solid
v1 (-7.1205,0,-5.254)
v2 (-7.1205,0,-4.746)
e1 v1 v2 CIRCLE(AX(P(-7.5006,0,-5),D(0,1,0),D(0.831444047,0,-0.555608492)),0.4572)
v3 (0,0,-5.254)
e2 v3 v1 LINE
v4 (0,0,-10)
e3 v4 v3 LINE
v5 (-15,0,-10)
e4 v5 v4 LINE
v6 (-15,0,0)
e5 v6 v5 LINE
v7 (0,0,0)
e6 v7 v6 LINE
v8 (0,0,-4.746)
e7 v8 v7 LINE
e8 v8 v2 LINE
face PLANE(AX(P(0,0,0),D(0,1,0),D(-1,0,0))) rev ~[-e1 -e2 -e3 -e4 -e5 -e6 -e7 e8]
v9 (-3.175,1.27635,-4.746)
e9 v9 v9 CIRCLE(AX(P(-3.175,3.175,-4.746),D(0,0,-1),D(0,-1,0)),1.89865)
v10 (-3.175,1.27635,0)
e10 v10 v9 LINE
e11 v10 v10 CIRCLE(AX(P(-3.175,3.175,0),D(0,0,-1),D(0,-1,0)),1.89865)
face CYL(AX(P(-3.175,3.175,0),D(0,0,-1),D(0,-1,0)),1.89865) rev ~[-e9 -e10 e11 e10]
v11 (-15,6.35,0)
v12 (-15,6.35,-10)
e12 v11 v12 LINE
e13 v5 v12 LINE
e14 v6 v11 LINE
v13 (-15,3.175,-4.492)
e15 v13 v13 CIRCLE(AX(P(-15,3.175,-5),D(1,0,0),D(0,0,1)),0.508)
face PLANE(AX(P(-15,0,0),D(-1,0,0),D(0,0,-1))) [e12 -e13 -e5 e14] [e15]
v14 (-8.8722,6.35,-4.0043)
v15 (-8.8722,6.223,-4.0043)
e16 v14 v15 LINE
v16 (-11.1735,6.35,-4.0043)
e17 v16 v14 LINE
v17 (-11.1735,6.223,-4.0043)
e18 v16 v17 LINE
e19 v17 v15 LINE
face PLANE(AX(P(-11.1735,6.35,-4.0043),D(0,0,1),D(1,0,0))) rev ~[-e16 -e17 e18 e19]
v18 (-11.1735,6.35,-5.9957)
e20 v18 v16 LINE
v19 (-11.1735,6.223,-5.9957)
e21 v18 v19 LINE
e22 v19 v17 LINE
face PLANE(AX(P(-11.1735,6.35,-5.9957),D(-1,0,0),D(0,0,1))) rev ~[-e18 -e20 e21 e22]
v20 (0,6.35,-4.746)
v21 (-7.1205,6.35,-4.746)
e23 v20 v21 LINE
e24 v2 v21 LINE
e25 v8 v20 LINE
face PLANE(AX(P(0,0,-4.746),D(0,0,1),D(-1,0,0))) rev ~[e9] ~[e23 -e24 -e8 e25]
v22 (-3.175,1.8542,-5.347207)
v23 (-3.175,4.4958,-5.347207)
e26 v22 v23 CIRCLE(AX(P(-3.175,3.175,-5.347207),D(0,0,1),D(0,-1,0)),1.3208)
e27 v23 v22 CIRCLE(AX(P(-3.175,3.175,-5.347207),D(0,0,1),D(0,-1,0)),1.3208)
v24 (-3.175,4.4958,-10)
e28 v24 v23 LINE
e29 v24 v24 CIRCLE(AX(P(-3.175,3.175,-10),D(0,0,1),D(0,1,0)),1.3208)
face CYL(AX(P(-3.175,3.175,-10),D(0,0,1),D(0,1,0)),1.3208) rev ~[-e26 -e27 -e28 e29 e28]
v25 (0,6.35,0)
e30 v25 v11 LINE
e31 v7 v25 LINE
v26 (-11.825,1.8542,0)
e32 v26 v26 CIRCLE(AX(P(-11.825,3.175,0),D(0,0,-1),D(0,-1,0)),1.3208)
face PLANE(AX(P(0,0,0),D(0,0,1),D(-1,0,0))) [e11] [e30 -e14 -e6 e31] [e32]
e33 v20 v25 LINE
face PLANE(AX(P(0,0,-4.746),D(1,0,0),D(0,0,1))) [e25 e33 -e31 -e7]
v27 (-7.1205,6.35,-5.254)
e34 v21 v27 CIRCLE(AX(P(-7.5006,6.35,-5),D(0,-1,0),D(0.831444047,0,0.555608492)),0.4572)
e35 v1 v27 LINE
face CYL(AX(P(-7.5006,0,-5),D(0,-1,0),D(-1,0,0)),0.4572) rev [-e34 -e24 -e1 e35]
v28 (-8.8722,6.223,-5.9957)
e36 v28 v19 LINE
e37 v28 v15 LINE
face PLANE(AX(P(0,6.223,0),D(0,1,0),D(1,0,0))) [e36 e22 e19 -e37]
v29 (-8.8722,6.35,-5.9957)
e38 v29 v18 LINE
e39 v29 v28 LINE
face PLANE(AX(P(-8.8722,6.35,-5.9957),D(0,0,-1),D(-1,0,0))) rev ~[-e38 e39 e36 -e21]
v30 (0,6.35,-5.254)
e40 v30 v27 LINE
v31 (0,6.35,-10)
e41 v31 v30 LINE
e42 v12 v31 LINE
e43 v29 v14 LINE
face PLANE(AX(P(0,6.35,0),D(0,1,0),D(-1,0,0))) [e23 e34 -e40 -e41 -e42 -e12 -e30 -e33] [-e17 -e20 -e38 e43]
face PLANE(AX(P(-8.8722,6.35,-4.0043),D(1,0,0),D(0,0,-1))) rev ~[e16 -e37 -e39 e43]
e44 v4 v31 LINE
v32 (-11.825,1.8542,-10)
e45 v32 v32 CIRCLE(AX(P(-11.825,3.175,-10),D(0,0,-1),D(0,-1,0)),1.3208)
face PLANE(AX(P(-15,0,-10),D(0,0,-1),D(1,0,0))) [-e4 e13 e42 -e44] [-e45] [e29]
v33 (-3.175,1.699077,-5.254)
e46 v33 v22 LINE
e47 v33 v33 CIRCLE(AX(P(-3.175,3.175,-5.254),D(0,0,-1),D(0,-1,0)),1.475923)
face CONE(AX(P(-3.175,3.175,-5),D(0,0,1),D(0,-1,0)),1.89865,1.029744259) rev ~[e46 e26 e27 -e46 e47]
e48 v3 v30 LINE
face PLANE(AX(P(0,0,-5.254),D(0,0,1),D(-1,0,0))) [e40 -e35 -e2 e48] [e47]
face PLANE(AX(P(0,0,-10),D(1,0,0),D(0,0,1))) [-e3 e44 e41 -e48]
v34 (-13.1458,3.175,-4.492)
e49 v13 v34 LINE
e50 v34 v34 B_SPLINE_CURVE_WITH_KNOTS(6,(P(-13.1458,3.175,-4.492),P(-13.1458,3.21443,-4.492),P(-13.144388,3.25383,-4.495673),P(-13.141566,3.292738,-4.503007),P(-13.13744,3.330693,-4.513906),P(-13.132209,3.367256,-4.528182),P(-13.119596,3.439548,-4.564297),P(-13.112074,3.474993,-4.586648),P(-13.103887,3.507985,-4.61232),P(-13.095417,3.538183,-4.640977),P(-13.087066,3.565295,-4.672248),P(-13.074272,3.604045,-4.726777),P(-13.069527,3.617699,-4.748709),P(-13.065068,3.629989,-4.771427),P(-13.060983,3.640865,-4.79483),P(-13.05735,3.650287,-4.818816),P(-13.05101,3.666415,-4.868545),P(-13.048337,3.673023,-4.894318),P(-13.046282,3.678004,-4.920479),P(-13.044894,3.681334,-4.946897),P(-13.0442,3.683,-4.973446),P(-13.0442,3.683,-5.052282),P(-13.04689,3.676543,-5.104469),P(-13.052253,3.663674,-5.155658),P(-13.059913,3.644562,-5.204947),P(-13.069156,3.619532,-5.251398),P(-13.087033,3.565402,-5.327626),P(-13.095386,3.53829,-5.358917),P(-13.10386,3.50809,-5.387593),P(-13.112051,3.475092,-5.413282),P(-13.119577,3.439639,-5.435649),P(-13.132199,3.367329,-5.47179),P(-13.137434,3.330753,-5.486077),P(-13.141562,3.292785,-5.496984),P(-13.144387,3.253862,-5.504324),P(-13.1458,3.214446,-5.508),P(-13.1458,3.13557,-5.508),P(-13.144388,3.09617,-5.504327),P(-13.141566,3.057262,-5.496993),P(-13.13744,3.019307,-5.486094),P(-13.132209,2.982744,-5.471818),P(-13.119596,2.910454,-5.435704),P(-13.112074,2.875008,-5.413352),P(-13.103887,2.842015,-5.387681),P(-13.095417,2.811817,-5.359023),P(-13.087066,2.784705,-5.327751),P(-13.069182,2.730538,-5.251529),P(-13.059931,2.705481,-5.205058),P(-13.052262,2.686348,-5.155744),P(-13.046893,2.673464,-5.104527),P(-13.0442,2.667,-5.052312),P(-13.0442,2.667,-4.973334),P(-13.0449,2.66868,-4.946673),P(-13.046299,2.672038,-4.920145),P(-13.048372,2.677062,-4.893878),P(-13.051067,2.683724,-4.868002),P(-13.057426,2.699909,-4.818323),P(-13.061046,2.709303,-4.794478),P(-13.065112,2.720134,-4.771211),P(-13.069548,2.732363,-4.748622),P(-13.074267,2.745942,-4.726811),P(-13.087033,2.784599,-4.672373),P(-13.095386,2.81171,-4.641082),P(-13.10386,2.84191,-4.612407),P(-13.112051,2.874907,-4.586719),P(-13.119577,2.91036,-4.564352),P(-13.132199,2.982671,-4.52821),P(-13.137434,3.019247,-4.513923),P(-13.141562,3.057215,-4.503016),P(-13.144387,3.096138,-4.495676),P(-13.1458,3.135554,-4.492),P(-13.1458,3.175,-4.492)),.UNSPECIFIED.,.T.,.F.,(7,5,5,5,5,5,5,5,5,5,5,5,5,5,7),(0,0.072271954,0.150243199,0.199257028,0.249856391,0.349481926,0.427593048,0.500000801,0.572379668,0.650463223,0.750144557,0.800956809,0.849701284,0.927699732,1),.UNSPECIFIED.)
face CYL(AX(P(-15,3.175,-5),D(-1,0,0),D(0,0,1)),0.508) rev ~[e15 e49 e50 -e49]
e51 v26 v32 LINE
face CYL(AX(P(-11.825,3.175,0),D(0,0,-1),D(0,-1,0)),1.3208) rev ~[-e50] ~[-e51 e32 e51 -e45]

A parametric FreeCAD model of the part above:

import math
import FreeCAD as App
import Part
import Sketcher
Q = App.Units.Quantity


def add_polygon(sketch, points):
    """Adds a closed chain of lines whose ends are joined by coincident constraints."""
    first, n = sketch.GeometryCount, len(points)
    for a, b in zip(points, points[1:] + points[:1]):
        sketch.addGeometry(Part.LineSegment(App.Vector(*a, 0), App.Vector(*b, 0)), False)
    for i in range(n):
        sketch.addConstraint(Sketcher.Constraint("Coincident", first + i, 2, first + (i + 1) % n, 1))

doc = App.newDocument("Part")
body = doc.addObject("PartDesign::Body", "Body")

# Sketch on XZ plane
sketch1 = body.newObject("Sketcher::SketchObject", "Sketch")
sketch1.AttachmentSupport = (doc.getObject("XZ_Plane"), [""])
sketch1.MapMode = "FlatFace"
sketch1.addGeometry([
    Part.LineSegment(App.Vector(-15, 0, 0), App.Vector(0, 0, 0)),  # 0
    Part.LineSegment(App.Vector(0, 0, 0), App.Vector(0, -4.75, 0)),  # 1
    Part.LineSegment(App.Vector(0, -4.75, 0), App.Vector(-7.12, -4.75, 0)),  # 2
    Part.ArcOfCircle(Part.Circle(App.Vector(-7.5, -5, 0), App.Vector(0, 0, 1), 0.46), math.radians(34), math.radians(326)),  # 3
    Part.LineSegment(App.Vector(-7.12, -5.25, 0), App.Vector(0, -5.25, 0)),  # 4
    Part.LineSegment(App.Vector(0, -5.25, 0), App.Vector(0, -10, 0)),  # 5
    Part.LineSegment(App.Vector(0, -10, 0), App.Vector(-15, -10, 0)),  # 6
    Part.LineSegment(App.Vector(-15, -10, 0), App.Vector(-15, 0, 0)),  # 7
], False)
sketch1.addConstraint([
    Sketcher.Constraint("Coincident", 0, 2, 1, 1),
    Sketcher.Constraint("Coincident", 1, 2, 2, 1),
    Sketcher.Constraint("Coincident", 2, 2, 3, 1),
    Sketcher.Constraint("Coincident", 3, 2, 4, 1),
    Sketcher.Constraint("Coincident", 4, 2, 5, 1),
    Sketcher.Constraint("Coincident", 5, 2, 6, 1),
    Sketcher.Constraint("Coincident", 6, 2, 7, 1),
    Sketcher.Constraint("Coincident", 7, 2, 0, 1),
    Sketcher.Constraint("Horizontal", 0),
    Sketcher.Constraint("Vertical", 1),
    Sketcher.Constraint("Horizontal", 2),
    Sketcher.Constraint("Horizontal", 4),
    Sketcher.Constraint("Vertical", 5),
    Sketcher.Constraint("Horizontal", 6),
    Sketcher.Constraint("Vertical", 7),
    Sketcher.Constraint("Coincident", 0, 2, -1, 1),
    Sketcher.Constraint("PointOnObject", 4, 2, -2),
    Sketcher.Constraint("Vertical", 2, 2, 3, 2),
    Sketcher.Constraint("Equal", 1, 5),
    Sketcher.Constraint("Radius", 3, Q("0.018 in")),
    Sketcher.Constraint("DistanceY", 3, 3, 1, 2, Q("0.01 in")),
    Sketcher.Constraint("DistanceY", 7, 1, 7, 2, Q("0.3937 in")),
    Sketcher.Constraint("DistanceX", 0, 1, 0, 2, Q("15 mm")),
    Sketcher.Constraint("DistanceX", 3, 3, -1, 1, Q("0.2953 in")),
])
pad1 = body.newObject("PartDesign::Pad", "Pad")
pad1.Profile = sketch1
pad1.Length = Q("0.25 in")
pad1.Reversed = True

# Sketch on YZ plane
sketch2 = body.newObject("Sketcher::SketchObject", "Sketch001")
sketch2.AttachmentSupport = (doc.getObject("YZ_Plane"), [""])
sketch2.MapMode = "FlatFace"
sketch2.AttachmentOffset = App.Placement(App.Vector(0, 0, -15), App.Rotation())
sketch2.addGeometry(Part.Circle(App.Vector(3.2, -5, 0), App.Vector(0, 0, 1), 0.5), False)
sketch2.addConstraint([
    Sketcher.Constraint("Diameter", 0, Q("0.04 in")),
    Sketcher.Constraint("DistanceX", -1, 1, 0, 3, Q("0.125 in")),
    Sketcher.Constraint("DistanceY", 0, 3, -1, 1, Q("5 mm")),
])
pocket1 = body.newObject("PartDesign::Pocket", "Pocket")
pocket1.Profile = sketch2
pocket1.Length = Q("0.1377992 in")
pocket1.Reversed = True

# Sketch on XY plane
sketch3 = body.newObject("Sketcher::SketchObject", "Sketch002")
sketch3.AttachmentSupport = (doc.getObject("XY_Plane"), [""])
sketch3.MapMode = "FlatFace"
sketch3.addGeometry(Part.Circle(App.Vector(-11.8, 3.2, 0), App.Vector(0, 0, 1), 1.3), False)
sketch3.addConstraint([
    Sketcher.Constraint("Diameter", 0, Q("0.104 in")),
    Sketcher.Constraint("DistanceY", -1, 1, 0, 3, Q("0.125 in")),
    Sketcher.Constraint("DistanceX", 0, 3, -1, 1, Q("11.825 mm")),
])
doc.recompute()
hole = body.newObject("PartDesign::Hole", "Hole")
hole.Profile = sketch3
hole.ThreadType = "None"
hole.Diameter = Q("0.104 in")
hole.DepthType = "ThroughAll"

# Sketch on XY plane
sketch4 = body.newObject("Sketcher::SketchObject", "Sketch003")
sketch4.AttachmentSupport = (doc.getObject("XY_Plane"), [""])
sketch4.MapMode = "FlatFace"
sketch4.AttachmentOffset = App.Placement(App.Vector(0, 0, -0.3937008 * 25.4), App.Rotation())
sketch4.addGeometry(Part.Circle(App.Vector(-3.2, 3.2, 0), App.Vector(0, 0, 1), 1.3), False)
sketch4.addConstraint([
    Sketcher.Constraint("Diameter", 0, Q("0.104 in")),
    Sketcher.Constraint("DistanceX", 0, 3, -1, 1, Q("0.125 in")),
    Sketcher.Constraint("DistanceY", -1, 1, 0, 3, Q("0.125 in")),
])
doc.recompute()
hole2 = body.newObject("PartDesign::Hole", "Hole001")
hole2.Profile = sketch4
hole2.ThreadType = "None"
hole2.Diameter = Q("0.104 in")
hole2.DepthType = "Dimension"
hole2.Depth = 5
hole2.DrillPoint = "Angled"
hole2.DrillPointAngle = 118
hole2.Reversed = True

# Sketch on XY plane
sketch5 = body.newObject("Sketcher::SketchObject", "Sketch004")
sketch5.AttachmentSupport = (doc.getObject("XY_Plane"), [""])
sketch5.MapMode = "FlatFace"
sketch5.addGeometry(Part.Circle(App.Vector(-3.2, 3.2, 0), App.Vector(0, 0, 1), 1.9), False)
sketch5.addConstraint([
    Sketcher.Constraint("Diameter", 0, Q("0.1495 in")),
    Sketcher.Constraint("DistanceX", 0, 3, -1, 1, Q("0.125 in")),
    Sketcher.Constraint("DistanceY", -1, 1, 0, 3, Q("0.125 in")),
])
doc.recompute()
hole3 = body.newObject("PartDesign::Hole", "Hole002")
hole3.Profile = sketch5
hole3.ThreadType = "None"
hole3.Diameter = Q("0.1495 in")
hole3.DepthType = "Dimension"
hole3.Depth = 5
hole3.DrillPoint = "Angled"
hole3.DrillPointAngle = 118

# Sketch on XZ plane
sketch6 = body.newObject("Sketcher::SketchObject", "Sketch005")
sketch6.AttachmentSupport = (doc.getObject("XZ_Plane"), [""])
sketch6.MapMode = "FlatFace"
sketch6.AttachmentOffset = App.Placement(App.Vector(0, 0, -0.25 * 25.4), App.Rotation())
add_polygon(sketch6, [(-8.9, -4), (-8.9, -6), (-11.2, -6), (-11.2, -4)])  # lines 0-3
sketch6.addConstraint([
    Sketcher.Constraint("Vertical", 0),
    Sketcher.Constraint("Horizontal", 1),
    Sketcher.Constraint("Vertical", 2),
    Sketcher.Constraint("Horizontal", 3),
    Sketcher.Constraint("DistanceX", 1, 2, 1, 1, Q("0.0906 in")),
    Sketcher.Constraint("DistanceY", 0, 2, 0, 1, Q("0.0784 in")),
    Sketcher.Constraint("DistanceX", 0, 2, -1, 1, Q("0.3493 in")),
    Sketcher.Constraint("DistanceY", 0, 2, -1, 1, Q("5.9957 mm")),
])
pocket2 = body.newObject("PartDesign::Pocket", "Pocket001")
pocket2.Profile = sketch6
pocket2.Length = Q("0.005 in")
pocket2.Reversed = True

doc.recompute()
